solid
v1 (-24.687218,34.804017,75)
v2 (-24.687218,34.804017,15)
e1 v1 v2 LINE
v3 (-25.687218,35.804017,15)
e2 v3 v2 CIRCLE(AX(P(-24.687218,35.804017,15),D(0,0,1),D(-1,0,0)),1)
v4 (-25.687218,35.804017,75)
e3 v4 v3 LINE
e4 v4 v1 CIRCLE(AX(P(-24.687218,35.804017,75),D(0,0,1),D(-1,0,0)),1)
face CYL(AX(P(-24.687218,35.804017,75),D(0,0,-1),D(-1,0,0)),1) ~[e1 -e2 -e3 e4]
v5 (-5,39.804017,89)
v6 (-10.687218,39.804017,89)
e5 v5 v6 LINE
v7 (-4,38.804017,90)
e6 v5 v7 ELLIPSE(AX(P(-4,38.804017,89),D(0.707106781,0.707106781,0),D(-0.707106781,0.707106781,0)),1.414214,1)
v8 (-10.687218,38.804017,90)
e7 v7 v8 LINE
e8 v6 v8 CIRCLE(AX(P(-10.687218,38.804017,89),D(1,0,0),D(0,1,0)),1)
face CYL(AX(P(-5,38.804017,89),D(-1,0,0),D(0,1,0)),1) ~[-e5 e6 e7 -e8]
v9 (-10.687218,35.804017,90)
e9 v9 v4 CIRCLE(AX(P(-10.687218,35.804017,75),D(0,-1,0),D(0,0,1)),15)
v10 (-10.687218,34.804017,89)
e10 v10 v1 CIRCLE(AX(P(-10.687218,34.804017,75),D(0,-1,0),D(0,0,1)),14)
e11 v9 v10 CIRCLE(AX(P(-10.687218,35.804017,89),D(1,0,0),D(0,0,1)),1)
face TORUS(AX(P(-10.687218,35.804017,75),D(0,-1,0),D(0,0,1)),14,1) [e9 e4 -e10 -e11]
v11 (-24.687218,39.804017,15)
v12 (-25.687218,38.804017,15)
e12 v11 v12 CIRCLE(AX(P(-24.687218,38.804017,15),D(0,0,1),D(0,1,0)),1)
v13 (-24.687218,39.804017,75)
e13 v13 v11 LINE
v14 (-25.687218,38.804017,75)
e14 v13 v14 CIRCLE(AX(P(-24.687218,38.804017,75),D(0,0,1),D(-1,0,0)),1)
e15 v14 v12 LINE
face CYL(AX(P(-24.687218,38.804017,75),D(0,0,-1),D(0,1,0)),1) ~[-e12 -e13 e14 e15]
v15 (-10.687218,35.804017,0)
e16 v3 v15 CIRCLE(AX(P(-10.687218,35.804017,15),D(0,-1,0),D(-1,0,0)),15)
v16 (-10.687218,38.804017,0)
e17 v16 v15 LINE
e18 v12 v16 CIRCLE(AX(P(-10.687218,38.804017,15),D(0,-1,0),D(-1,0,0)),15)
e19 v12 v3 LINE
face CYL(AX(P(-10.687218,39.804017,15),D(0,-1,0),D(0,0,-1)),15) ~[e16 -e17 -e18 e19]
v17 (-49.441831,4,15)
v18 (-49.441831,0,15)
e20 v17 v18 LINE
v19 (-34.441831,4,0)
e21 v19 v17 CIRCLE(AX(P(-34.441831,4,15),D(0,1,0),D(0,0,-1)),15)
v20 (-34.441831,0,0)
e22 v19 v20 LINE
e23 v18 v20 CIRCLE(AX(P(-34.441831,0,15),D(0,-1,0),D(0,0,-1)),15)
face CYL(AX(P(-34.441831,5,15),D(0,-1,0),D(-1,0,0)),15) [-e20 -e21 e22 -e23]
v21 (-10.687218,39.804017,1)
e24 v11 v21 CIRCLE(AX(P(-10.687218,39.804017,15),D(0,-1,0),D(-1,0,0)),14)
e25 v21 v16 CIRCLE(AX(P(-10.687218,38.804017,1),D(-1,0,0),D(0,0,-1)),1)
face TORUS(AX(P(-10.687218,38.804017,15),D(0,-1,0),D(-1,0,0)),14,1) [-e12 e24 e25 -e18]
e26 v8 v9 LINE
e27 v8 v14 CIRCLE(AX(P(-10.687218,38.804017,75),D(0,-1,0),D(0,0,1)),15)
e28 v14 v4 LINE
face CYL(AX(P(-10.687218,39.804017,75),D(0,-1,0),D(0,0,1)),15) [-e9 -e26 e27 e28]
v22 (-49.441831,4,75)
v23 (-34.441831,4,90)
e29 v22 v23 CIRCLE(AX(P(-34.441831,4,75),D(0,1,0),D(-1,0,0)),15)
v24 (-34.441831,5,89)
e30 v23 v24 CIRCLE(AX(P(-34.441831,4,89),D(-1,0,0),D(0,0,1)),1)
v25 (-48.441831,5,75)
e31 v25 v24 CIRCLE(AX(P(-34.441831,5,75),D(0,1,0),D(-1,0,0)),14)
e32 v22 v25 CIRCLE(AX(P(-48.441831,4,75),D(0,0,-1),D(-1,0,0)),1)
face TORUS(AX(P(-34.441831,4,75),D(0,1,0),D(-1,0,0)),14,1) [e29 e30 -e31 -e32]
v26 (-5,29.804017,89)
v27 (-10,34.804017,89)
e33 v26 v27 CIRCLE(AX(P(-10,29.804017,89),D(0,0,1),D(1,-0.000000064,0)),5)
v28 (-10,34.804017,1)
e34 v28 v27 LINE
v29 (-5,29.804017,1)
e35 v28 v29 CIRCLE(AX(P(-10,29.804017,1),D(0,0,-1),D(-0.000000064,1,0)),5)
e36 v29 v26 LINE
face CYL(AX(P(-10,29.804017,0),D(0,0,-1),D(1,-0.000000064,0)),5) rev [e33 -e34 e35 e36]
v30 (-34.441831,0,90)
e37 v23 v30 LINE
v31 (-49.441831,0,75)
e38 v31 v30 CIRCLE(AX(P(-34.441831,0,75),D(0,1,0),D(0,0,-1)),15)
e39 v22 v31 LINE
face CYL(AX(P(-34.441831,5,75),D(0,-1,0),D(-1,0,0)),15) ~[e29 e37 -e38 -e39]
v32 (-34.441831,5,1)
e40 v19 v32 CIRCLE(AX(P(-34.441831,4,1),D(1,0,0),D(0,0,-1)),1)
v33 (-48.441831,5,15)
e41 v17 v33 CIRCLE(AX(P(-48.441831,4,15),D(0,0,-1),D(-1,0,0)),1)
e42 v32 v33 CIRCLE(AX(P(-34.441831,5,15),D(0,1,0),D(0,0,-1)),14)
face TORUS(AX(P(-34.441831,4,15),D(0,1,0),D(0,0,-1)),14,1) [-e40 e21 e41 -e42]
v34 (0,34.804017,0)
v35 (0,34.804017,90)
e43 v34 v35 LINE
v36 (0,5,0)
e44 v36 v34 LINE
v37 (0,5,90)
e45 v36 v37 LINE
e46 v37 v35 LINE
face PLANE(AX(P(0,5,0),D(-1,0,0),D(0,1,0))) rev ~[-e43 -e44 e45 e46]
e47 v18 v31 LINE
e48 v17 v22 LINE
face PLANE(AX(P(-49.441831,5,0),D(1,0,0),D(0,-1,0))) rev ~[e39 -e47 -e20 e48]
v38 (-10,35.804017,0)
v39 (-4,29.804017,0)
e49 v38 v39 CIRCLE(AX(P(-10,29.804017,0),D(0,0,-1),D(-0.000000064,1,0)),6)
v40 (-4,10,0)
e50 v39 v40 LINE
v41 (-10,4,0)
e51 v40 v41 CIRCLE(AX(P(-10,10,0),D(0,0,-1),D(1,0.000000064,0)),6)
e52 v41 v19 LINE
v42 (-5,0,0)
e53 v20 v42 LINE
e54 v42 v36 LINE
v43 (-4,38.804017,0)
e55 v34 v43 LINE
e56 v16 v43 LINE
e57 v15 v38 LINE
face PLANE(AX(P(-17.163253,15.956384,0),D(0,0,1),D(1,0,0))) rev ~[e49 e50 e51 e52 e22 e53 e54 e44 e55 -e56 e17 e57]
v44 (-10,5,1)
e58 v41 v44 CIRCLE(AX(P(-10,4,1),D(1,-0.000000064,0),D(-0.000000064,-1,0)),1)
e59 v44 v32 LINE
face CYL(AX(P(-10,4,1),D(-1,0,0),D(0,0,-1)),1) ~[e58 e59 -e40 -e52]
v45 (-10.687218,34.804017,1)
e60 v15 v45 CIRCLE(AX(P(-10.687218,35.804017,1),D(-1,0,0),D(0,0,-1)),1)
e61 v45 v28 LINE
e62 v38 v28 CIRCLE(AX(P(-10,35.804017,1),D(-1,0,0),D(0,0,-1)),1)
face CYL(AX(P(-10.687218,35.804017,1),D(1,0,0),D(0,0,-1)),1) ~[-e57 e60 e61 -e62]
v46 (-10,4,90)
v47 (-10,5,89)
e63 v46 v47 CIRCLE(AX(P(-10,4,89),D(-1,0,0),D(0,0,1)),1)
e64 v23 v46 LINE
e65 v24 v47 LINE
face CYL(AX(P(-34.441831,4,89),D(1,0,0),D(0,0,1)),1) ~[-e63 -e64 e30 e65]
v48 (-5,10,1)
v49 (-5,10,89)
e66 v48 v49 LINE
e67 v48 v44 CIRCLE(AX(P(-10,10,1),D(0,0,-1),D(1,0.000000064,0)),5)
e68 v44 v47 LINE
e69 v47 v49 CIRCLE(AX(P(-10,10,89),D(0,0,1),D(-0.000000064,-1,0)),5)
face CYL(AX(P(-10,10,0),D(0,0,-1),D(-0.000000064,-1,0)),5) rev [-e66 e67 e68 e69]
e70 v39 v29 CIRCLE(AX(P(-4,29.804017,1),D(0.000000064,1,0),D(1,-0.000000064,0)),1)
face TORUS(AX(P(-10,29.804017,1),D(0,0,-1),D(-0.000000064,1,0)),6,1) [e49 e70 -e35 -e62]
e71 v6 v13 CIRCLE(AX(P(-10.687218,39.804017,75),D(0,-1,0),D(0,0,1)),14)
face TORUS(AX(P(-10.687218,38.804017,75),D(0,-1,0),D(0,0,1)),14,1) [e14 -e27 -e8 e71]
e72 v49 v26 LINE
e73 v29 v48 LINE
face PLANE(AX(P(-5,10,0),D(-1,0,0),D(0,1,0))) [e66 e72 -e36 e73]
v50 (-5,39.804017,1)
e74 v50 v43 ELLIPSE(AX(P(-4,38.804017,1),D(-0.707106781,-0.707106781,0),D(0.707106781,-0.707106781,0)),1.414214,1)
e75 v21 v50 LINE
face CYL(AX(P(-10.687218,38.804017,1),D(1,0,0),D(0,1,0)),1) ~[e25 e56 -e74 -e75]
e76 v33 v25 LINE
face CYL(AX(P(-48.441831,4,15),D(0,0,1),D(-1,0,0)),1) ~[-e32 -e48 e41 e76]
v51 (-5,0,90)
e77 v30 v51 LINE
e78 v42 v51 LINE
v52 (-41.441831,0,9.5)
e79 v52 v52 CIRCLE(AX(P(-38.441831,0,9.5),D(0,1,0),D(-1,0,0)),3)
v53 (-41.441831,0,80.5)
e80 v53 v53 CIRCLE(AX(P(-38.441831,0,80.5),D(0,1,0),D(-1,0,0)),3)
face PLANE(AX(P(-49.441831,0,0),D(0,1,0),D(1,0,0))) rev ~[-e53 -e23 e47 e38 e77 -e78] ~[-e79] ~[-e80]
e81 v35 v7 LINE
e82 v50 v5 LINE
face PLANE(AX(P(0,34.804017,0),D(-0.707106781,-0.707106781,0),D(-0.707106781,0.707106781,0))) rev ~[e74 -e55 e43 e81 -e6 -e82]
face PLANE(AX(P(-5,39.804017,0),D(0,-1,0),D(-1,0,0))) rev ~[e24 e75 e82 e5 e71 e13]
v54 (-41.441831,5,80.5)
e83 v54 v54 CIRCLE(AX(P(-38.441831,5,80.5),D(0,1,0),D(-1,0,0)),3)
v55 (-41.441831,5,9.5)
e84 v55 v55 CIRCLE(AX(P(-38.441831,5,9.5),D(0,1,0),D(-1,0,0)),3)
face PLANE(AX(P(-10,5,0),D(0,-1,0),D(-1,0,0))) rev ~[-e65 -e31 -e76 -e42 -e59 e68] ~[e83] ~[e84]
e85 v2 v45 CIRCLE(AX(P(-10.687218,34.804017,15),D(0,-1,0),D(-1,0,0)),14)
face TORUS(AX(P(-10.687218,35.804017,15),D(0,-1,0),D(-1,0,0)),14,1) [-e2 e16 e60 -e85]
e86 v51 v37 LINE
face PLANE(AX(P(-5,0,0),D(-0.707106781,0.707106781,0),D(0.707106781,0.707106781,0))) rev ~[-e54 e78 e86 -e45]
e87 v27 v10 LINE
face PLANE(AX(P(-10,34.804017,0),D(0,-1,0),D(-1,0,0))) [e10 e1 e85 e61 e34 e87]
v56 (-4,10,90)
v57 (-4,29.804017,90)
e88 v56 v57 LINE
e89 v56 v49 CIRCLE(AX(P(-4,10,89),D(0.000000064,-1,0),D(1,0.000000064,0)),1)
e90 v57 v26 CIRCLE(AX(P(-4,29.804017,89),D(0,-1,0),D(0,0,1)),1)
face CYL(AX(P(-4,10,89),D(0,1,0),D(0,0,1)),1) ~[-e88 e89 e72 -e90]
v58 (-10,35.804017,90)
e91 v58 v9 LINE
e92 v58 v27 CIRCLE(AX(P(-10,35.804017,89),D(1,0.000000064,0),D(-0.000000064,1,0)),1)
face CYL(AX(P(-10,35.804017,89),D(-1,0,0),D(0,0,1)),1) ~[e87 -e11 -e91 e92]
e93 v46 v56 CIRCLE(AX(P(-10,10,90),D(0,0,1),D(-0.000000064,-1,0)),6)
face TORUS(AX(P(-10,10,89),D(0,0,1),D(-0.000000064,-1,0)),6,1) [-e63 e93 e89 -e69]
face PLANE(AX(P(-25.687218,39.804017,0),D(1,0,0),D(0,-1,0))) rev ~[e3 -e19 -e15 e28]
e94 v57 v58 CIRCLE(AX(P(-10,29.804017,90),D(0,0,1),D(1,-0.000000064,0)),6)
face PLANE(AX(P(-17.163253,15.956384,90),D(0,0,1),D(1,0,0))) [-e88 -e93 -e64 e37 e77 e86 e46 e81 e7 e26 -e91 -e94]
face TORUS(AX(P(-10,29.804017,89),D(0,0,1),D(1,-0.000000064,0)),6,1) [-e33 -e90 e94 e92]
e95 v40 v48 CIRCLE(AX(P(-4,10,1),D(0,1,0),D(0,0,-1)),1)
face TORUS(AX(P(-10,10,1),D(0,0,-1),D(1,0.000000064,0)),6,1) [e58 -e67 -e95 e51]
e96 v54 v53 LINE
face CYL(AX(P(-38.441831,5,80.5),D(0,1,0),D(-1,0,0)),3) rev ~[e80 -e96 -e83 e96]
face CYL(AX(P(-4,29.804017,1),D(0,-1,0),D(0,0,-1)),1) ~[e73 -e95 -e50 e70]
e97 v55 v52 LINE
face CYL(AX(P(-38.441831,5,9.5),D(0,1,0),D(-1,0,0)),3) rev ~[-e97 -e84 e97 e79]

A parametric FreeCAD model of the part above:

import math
import FreeCAD as App
import Part
import Sketcher
Q = App.Units.Quantity


def edges_at(feature, points):
    """Names of the edges that pass closest to the given points."""
    edges = feature.Shape.Edges
    near = lambda p: min(range(len(edges)), key=lambda i: edges[i].distToShape(Part.Vertex(*p))[0])
    return sorted({f"Edge{near(p) + 1}" for p in points})

doc = App.newDocument("Part")
body = doc.addObject("PartDesign::Body", "Body")

# Sketch on XY plane
sketch1 = body.newObject("Sketcher::SketchObject", "Sketch")
sketch1.AttachmentSupport = (doc.getObject("XY_Plane"), [""])
sketch1.MapMode = "FlatFace"
sketch1.addGeometry([
    Part.LineSegment(App.Vector(-49.441831, 0, 0), App.Vector(-5, 0, 0)),  # 0
    Part.LineSegment(App.Vector(-5, 0, 0), App.Vector(0, 5, 0)),  # 1
    Part.LineSegment(App.Vector(0, 5, 0), App.Vector(0, 34.804017, 0)),  # 2
    Part.LineSegment(App.Vector(0, 34.804017, 0), App.Vector(-5, 39.804017, 0)),  # 3
    Part.LineSegment(App.Vector(-5, 39.804017, 0), App.Vector(-25.687218, 39.804017, 0)),  # 4
    Part.LineSegment(App.Vector(-25.687218, 39.804017, 0), App.Vector(-25.687218, 34.804017, 0)),  # 5
    Part.LineSegment(App.Vector(-25.687218, 34.804017, 0), App.Vector(-10, 34.804017, 0)),  # 6
    Part.ArcOfCircle(Part.Circle(App.Vector(-10, 29.804017, 0), App.Vector(0, 0, 1), 5), math.radians(-0.000004), math.radians(90.000004)),  # 7
    Part.LineSegment(App.Vector(-5, 29.804017, 0), App.Vector(-5, 10, 0)),  # 8
    Part.ArcOfCircle(Part.Circle(App.Vector(-10, 10, 0), App.Vector(0, 0, 1), 5), math.radians(-90.000004), math.radians(0.000004)),  # 9
    Part.LineSegment(App.Vector(-10, 5, 0), App.Vector(-49.441831, 5, 0)),  # 10
    Part.LineSegment(App.Vector(-49.441831, 5, 0), App.Vector(-49.441831, 0, 0)),  # 11
], False)
sketch1.addConstraint([
    Sketcher.Constraint("Coincident", 0, 2, 1, 1),
    Sketcher.Constraint("Coincident", 1, 2, 2, 1),
    Sketcher.Constraint("Coincident", 2, 2, 3, 1),
    Sketcher.Constraint("Coincident", 3, 2, 4, 1),
    Sketcher.Constraint("Coincident", 4, 2, 5, 1),
    Sketcher.Constraint("Coincident", 5, 2, 6, 1),
    Sketcher.Constraint("Tangent", 6, 2, 7, 2),
    Sketcher.Constraint("Tangent", 7, 1, 8, 1),
    Sketcher.Constraint("Tangent", 8, 2, 9, 2),
    Sketcher.Constraint("Tangent", 9, 1, 10, 1),
    Sketcher.Constraint("Coincident", 10, 2, 11, 1),
    Sketcher.Constraint("Coincident", 11, 2, 0, 1),
    Sketcher.Constraint("Horizontal", 0),
    Sketcher.Constraint("Vertical", 2),
    Sketcher.Constraint("Horizontal", 4),
    Sketcher.Constraint("Vertical", 5),
    Sketcher.Constraint("Horizontal", 6),
    Sketcher.Constraint("Vertical", 8),
    Sketcher.Constraint("Horizontal", 10),
    Sketcher.Constraint("Vertical", 11),
    Sketcher.Constraint("Equal", 7, 9),
    Sketcher.Constraint("PointOnObject", 0, 2, -1),
    Sketcher.Constraint("PointOnObject", 1, 2, -2),
    Sketcher.Constraint("Perpendicular", 1, 3),
    Sketcher.Constraint("Horizontal", 2, 2, 5, 2),
    Sketcher.Constraint("Horizontal", 1, 2, 9, 1),
    Sketcher.Constraint("Vertical", 0, 2, 3, 2),
    Sketcher.Constraint("Vertical", 3, 2, 7, 1),
    Sketcher.Constraint("Equal", 5, 11),
    Sketcher.Constraint("Radius", 7, Q("5 mm")),
    Sketcher.Constraint("DistanceY", 5, 2, 5, 1, Q("5 mm")),
    Sketcher.Constraint("DistanceX", 0, 1, 0, 2, Q("44.441831 mm")),
    Sketcher.Constraint("DistanceX", 4, 2, 4, 1, Q("20.687218 mm")),
    Sketcher.Constraint("DistanceY", 2, 1, 2, 2, Q("29.804017 mm")),
])
pad1 = body.newObject("PartDesign::Pad", "Pad")
pad1.Profile = sketch1
pad1.Length = 90

# Sketch on XZ plane
sketch2 = body.newObject("Sketcher::SketchObject", "Sketch001")
sketch2.AttachmentSupport = (doc.getObject("XZ_Plane"), [""])
sketch2.MapMode = "FlatFace"
sketch2.AttachmentOffset = App.Placement(App.Vector(0, 0, -5), App.Rotation())
sketch2.addGeometry([
    Part.Circle(App.Vector(-38.441831, 80.5, 0), App.Vector(0, 0, 1), 3),
    Part.Circle(App.Vector(-38.441831, 9.5, 0), App.Vector(0, 0, 1), 3),
], False)
sketch2.addConstraint([
    Sketcher.Constraint("Equal", 0, 1),
    Sketcher.Constraint("Vertical", 0, 3, 1, 3),
    Sketcher.Constraint("Diameter", 0, Q("6 mm")),
    Sketcher.Constraint("DistanceY", 1, 3, 0, 3, Q("71 mm")),
    Sketcher.Constraint("DistanceY", -1, 1, 0, 3, Q("80.5 mm")),
    Sketcher.Constraint("DistanceX", 0, 3, -1, 1, Q("38.441831 mm")),
])
pocket1 = body.newObject("PartDesign::Pocket", "Pocket")
pocket1.Profile = sketch2
pocket1.Length = 5
pocket1.Reversed = True
doc.recompute()

fillet = body.newObject("PartDesign::Fillet", "Fillet")
fillet.Base = (pocket1, edges_at(pocket1, [
    (-25.687, 37.304, 90),
    (-25.687, 37.304, 0),
    (-49.442, 2.5, 0),
    (-49.442, 2.5, 90),
]))
fillet.Radius = 15
doc.recompute()

fillet2 = body.newObject("PartDesign::Fillet", "Fillet001")
fillet2.Base = (fillet, edges_at(fillet, [
    (-49.442, 5, 45),
    (-45.048, 5, 85.607),
    (-22.221, 5, 90),
    (-45.048, 5, 4.393),
    (-22.221, 5, 0),
]))
fillet2.Radius = 1
doc.recompute()

fillet3 = body.newObject("PartDesign::Fillet", "Fillet002")
fillet3.Base = (fillet2, edges_at(fillet2, [(-21.294, 39.804, 85.607), (-25.687, 39.804, 45), (-21.294, 39.804, 4.393)]))
fillet3.Radius = 1

doc.recompute()
